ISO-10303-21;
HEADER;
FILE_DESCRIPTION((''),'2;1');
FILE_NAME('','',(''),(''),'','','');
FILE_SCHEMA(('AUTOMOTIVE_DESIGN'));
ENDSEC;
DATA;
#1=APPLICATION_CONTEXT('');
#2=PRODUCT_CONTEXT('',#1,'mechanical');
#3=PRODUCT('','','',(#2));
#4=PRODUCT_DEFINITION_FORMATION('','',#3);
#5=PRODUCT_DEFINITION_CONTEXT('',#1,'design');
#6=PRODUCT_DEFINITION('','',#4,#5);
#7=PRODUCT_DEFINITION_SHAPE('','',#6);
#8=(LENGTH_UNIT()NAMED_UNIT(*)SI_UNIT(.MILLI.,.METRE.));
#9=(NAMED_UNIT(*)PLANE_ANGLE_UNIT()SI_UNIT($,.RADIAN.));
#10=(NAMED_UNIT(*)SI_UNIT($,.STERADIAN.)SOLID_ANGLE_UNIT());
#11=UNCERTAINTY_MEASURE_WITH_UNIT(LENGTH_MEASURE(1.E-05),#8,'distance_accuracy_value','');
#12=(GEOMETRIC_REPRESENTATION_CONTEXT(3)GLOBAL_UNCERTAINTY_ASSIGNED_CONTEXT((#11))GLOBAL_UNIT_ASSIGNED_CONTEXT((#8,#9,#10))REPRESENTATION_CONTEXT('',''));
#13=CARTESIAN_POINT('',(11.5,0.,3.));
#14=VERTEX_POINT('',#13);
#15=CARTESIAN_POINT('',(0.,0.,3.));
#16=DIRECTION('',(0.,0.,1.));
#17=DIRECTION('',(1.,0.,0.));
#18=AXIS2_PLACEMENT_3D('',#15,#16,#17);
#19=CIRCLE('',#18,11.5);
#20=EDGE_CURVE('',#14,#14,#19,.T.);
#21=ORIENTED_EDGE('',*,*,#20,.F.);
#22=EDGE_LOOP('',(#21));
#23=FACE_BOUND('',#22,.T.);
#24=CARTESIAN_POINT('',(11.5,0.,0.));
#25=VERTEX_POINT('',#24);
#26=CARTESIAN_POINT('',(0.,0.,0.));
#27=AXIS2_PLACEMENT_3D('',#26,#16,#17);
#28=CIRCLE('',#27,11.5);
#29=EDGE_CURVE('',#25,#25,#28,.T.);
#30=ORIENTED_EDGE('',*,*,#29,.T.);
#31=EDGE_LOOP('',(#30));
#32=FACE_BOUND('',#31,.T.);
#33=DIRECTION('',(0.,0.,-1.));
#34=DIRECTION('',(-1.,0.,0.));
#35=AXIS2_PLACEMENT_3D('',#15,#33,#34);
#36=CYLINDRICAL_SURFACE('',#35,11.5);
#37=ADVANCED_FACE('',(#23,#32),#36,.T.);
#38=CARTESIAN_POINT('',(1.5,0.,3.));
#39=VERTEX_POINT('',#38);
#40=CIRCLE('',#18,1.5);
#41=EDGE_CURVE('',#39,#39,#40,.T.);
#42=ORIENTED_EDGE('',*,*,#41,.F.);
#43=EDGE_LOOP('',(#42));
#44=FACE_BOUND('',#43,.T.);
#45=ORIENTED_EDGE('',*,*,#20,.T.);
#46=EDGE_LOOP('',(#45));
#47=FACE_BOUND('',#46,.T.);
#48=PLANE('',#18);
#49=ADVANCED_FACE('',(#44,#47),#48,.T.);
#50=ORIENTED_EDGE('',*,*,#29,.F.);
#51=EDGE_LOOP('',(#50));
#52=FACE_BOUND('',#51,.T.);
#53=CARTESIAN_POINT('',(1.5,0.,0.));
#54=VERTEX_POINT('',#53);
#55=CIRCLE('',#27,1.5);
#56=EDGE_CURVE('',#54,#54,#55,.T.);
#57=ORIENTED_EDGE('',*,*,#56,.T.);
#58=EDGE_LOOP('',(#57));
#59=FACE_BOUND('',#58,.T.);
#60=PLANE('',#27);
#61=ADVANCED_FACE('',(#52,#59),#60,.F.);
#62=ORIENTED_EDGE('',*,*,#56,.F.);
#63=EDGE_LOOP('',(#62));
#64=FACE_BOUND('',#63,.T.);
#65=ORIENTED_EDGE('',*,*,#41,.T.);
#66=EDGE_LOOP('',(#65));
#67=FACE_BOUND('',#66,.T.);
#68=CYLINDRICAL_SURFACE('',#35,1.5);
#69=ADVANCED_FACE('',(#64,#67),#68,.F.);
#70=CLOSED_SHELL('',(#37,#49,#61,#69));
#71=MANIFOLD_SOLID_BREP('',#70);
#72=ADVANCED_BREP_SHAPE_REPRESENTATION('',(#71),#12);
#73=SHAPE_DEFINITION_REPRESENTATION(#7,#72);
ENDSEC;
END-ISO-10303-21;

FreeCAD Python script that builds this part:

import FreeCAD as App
import Part
import Sketcher
Q = App.Units.Quantity

doc = App.newDocument("Part")
body = doc.addObject("PartDesign::Body", "Body")

sketch1 = doc.addObject("Sketcher::SketchObject", "Sketch")
body.addObject(sketch1)
sketch1.AttachmentSupport = (doc.XY_Plane, [""])
sketch1.MapMode = "FlatFace"
sketch1.addGeometry([
    Part.Circle(App.Vector(0, 0, 0), App.Vector(0, 0, 1), 11.5),
    Part.Circle(App.Vector(0, 0, 0), App.Vector(0, 0, 1), 1.5),
], False)
sketch1.addConstraint([
    Sketcher.Constraint("Coincident", 0, 3, -1, 1),
    Sketcher.Constraint("Coincident", 1, 3, -1, 1),
    Sketcher.Constraint("Diameter", 0, Q("23 mm")),
    Sketcher.Constraint("Diameter", 1, Q("3 mm")),
])
pad1 = doc.addObject("PartDesign::Pad", "Pad")
body.addObject(pad1)
pad1.Profile = sketch1
pad1.Length = 3

doc.recompute()
